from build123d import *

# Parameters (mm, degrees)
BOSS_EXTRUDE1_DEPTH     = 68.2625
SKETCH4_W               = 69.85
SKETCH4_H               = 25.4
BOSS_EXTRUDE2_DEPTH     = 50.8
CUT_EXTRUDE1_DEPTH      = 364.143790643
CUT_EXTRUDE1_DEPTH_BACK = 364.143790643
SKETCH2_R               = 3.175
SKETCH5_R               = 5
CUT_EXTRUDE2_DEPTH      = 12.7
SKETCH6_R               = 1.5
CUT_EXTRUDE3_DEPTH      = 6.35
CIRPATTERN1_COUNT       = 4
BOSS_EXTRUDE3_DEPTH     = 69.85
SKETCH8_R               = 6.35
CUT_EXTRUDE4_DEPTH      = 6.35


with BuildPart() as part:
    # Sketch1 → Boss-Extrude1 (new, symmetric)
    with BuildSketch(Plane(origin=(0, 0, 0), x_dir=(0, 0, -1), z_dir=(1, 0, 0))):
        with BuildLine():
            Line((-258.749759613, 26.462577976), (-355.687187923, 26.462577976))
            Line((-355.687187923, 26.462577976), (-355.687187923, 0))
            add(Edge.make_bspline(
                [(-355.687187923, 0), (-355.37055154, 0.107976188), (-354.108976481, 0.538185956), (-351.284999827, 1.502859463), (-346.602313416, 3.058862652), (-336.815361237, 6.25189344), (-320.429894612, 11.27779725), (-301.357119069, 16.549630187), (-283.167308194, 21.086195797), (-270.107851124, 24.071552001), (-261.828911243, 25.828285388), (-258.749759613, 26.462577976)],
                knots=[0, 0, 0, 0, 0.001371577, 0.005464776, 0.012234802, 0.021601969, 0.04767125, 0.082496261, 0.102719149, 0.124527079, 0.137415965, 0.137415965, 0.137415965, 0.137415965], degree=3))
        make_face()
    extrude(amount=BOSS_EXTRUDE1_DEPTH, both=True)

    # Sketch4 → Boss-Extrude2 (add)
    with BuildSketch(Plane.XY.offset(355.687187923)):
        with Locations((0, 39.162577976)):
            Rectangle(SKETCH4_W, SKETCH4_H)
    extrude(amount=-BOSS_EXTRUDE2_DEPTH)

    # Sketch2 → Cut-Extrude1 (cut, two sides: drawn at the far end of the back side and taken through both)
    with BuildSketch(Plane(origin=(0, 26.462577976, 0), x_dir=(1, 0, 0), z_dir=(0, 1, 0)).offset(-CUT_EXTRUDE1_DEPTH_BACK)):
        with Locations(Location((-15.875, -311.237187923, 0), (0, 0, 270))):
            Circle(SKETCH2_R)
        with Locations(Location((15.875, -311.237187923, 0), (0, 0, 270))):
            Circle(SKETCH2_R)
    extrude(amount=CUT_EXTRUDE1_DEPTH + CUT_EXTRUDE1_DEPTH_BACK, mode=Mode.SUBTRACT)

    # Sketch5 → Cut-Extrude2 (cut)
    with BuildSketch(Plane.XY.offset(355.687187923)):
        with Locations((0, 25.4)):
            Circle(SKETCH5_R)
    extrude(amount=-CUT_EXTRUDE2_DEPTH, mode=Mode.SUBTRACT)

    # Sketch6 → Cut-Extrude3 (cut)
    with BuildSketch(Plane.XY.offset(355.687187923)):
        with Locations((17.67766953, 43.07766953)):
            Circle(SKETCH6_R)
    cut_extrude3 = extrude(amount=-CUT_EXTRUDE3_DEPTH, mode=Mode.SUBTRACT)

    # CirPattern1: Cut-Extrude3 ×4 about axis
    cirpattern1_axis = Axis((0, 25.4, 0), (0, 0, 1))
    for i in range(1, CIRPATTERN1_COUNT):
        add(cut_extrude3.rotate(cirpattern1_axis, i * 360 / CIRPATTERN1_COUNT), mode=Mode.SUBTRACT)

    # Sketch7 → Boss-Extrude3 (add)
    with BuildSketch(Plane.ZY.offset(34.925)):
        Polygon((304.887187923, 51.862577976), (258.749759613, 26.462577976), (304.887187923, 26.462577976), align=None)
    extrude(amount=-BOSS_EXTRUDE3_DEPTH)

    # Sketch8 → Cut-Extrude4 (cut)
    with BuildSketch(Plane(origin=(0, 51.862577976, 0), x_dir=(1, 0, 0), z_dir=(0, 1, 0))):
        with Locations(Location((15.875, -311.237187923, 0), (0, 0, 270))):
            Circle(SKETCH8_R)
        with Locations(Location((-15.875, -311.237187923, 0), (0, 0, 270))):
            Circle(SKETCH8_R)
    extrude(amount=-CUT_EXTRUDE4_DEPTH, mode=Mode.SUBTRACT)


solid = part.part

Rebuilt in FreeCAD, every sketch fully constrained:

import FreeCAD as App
import Part
import Sketcher

V = App.Vector
Q = App.Units.Quantity


def add_polygon(sketch, points):
    """Adds a closed chain of lines whose ends are joined by coincident constraints."""
    first, n = sketch.GeometryCount, len(points)
    for a, b in zip(points, points[1:] + points[:1]):
        sketch.addGeometry(Part.LineSegment(App.Vector(*a, 0), App.Vector(*b, 0)), False)
    for i in range(n):
        sketch.addConstraint(Sketcher.Constraint("Coincident", first + i, 2, first + (i + 1) % n, 1))

doc = App.newDocument("Part")
params = doc.addObject("Spreadsheet::Sheet", "Params")
for row, (alias, value) in enumerate([
    ("pad1_length", "5.375 in"),
    ("sketch2_height", "1 in"),
    ("sketch2_width", "2.75 in"),
    ("pad2_length", "2 in"),
    ("sketch3_diameter", "0.25 in"),
    ("pocket2_length", "0.5 in"),
    ("pocket3_length", "0.25 in"),
    ("sketch6_width", "1 in"),
    ("pad3_length", "2.75 in"),
    ("sketch7_diameter", "0.5 in"),
    ("pocket4_length", "0.25 in"),
], start=1):
    params.set(f"A{row}", alias)
    params.set(f"B{row}", "=" + value)
    params.setAlias(f"B{row}", alias)

body = doc.addObject("PartDesign::Body", "Body")

sketch1 = body.newObject("Sketcher::SketchObject", "Sketch")
sketch1.AttachmentSupport = (doc.getObject("YZ_Plane"), [""])
sketch1.MapMode = "FlatFace"
sketch1.addGeometry(Part.LineSegment(V(26.462578, 258.74976, 0), V(26.462578, 355.687188, 0)), False)
sketch1.addGeometry(Part.LineSegment(V(26.462578, 355.687188, 0), V(0, 355.687188, 0)), False)
sketch1.addGeometry(Part.BSplineCurve([V(0, 355.687188, 0), V(0.107976, 355.370552, 0), V(0.538186, 354.108976, 0), V(1.502859, 351.285, 0), V(3.058863, 346.602313, 0), V(6.251893, 336.815361, 0), V(11.277797, 320.429895, 0), V(16.54963, 301.357119, 0), V(21.086196, 283.167308, 0), V(24.071552, 270.107851, 0), V(25.828285, 261.828911, 0), V(26.462578, 258.74976, 0)], [4, 1, 1, 1, 1, 1, 1, 1, 1, 4], [0, 0.001371577, 0.005464776, 0.012234802, 0.021601969, 0.04767125, 0.082496261, 0.102719149, 0.124527079, 0.137415965], False, 3, [1, 1, 1, 1, 1, 1, 1, 1, 1, 1, 1, 1], False), False)
sketch1.addConstraint(Sketcher.Constraint("Block", 2))
sketch1.addConstraint(Sketcher.Constraint("Coincident", 0, 2, 1, 1))
sketch1.addConstraint(Sketcher.Constraint("Coincident", 1, 2, 2, 1))
sketch1.addConstraint(Sketcher.Constraint("Coincident", 2, 2, 0, 1))
sketch1.addConstraint(Sketcher.Constraint("Vertical", 0))
sketch1.addConstraint(Sketcher.Constraint("Horizontal", 1))
pad1 = body.newObject("PartDesign::Pad", "Pad")
pad1.Profile = sketch1
pad1.setExpression("Length", "Params.pad1_length")
pad1.Midplane = True

sketch2 = body.newObject("Sketcher::SketchObject", "Sketch001")
sketch2.AttachmentSupport = (doc.getObject("XY_Plane"), [""])
sketch2.MapMode = "FlatFace"
sketch2.AttachmentOffset = App.Placement(V(0, 0, 355.687188), App.Rotation())
add_polygon(sketch2, [(-35, 52), (-35, 26), (35, 26), (35, 52)])
sketch2.addConstraint(Sketcher.Constraint("Vertical", 0))
sketch2.addConstraint(Sketcher.Constraint("Horizontal", 1))
sketch2.addConstraint(Sketcher.Constraint("Vertical", 2))
sketch2.addConstraint(Sketcher.Constraint("Horizontal", 3))
sketch2.addConstraint(Sketcher.Constraint("DistanceY", 0, 2, 0, 1, Q("1 in")))
sketch2.addConstraint(Sketcher.Constraint("DistanceX", 1, 1, 1, 2, Q("2.75 in")))
sketch2.addConstraint(Sketcher.Constraint("DistanceX", 0, 2, -1, 1, Q("1.375 in")))
sketch2.addConstraint(Sketcher.Constraint("DistanceY", -1, 1, 0, 2, 26.462578))
sketch2.setExpression("Constraints[8]", "Params.sketch2_height")
sketch2.setExpression("Constraints[9]", "Params.sketch2_width")
pad2 = body.newObject("PartDesign::Pad", "Pad001")
pad2.Profile = sketch2
pad2.setExpression("Length", "Params.pad2_length")
pad2.Reversed = True

sketch3 = body.newObject("Sketcher::SketchObject", "Sketch002")
sketch3.AttachmentSupport = (doc.getObject("XZ_Plane"), [""])
sketch3.MapMode = "FlatFace"
sketch3.AttachmentOffset = App.Placement(V(0, 0, -26.462578), App.Rotation())
sketch3.addGeometry(Part.Circle(V(-15.9, 311.2, 0), V(0, 0, 1), 3.2), False)
sketch3.addGeometry(Part.Circle(V(15.9, 311.2, 0), V(0, 0, 1), 3.2), False)
sketch3.addConstraint(Sketcher.Constraint("Equal", 0, 1))
sketch3.addConstraint(Sketcher.Constraint("Symmetric", 0, 3, 1, 3, -2))
sketch3.addConstraint(Sketcher.Constraint("Diameter", 0, Q("0.25 in")))
sketch3.addConstraint(Sketcher.Constraint("DistanceX", 0, 3, 1, 3, Q("1.25 in")))
sketch3.addConstraint(Sketcher.Constraint("DistanceY", -1, 1, 0, 3, 311.237188))
sketch3.setExpression("Constraints[2]", "Params.sketch3_diameter")
pocket1 = body.newObject("PartDesign::Pocket", "Pocket")
pocket1.Profile = sketch3
pocket1.Type = "ThroughAll"
pocket1.Midplane = True

sketch4 = body.newObject("Sketcher::SketchObject", "Sketch003")
sketch4.AttachmentSupport = (doc.getObject("XY_Plane"), [""])
sketch4.MapMode = "FlatFace"
sketch4.AttachmentOffset = App.Placement(V(0, 0, 355.687188), App.Rotation())
sketch4.addGeometry(Part.Circle(V(0, 25, 0), V(0, 0, 1), 5), False)
sketch4.addConstraint(Sketcher.Constraint("PointOnObject", 0, 3, -2))
sketch4.addConstraint(Sketcher.Constraint("DistanceY", -1, 1, 0, 3, Q("1 in")))
sketch4.addConstraint(Sketcher.Constraint("Diameter", 0, 10.0))
pocket2 = body.newObject("PartDesign::Pocket", "Pocket001")
pocket2.Profile = sketch4
pocket2.setExpression("Length", "Params.pocket2_length")

sketch5 = body.newObject("Sketcher::SketchObject", "Sketch004")
sketch5.AttachmentSupport = (doc.getObject("XY_Plane"), [""])
sketch5.MapMode = "FlatFace"
sketch5.AttachmentOffset = App.Placement(V(0, 0, 355.687188), App.Rotation())
sketch5.addGeometry(Part.Circle(V(17.7, 43.1, 0), V(0, 0, 1), 1.5), False)
sketch5.addConstraint(Sketcher.Constraint("Diameter", 0, 3.0))
sketch5.addConstraint(Sketcher.Constraint("DistanceX", -1, 1, 0, 3, 17.67767))
sketch5.addConstraint(Sketcher.Constraint("DistanceY", -1, 1, 0, 3, 43.07767))
pocket3 = body.newObject("PartDesign::Pocket", "Pocket002")
pocket3.Profile = sketch5
pocket3.setExpression("Length", "Params.pocket3_length")
doc.recompute()

datumline = body.newObject("PartDesign::Line", "DatumLine")
datumline.Placement = App.Placement(V(0, 25.4, 0), App.Rotation(V(0, 0, 1), V(0, 0, 1)))
polarpattern = body.newObject("PartDesign::PolarPattern", "PolarPattern")
polarpattern.Originals = [pocket3]
polarpattern.Axis = (datumline, [""])
polarpattern.Angle = 360
polarpattern.Occurrences = 4
body.Tip = polarpattern

sketch6 = body.newObject("Sketcher::SketchObject", "Sketch005")
sketch6.AttachmentSupport = (doc.getObject("YZ_Plane"), [""])
sketch6.MapMode = "FlatFace"
sketch6.AttachmentOffset = App.Placement(V(0, 0, -1.375 * 25.4), App.Rotation())
add_polygon(sketch6, [(52, 305), (26, 259), (26, 305)])
sketch6.addConstraint(Sketcher.Constraint("Vertical", 1))
sketch6.addConstraint(Sketcher.Constraint("Horizontal", 2))
sketch6.addConstraint(Sketcher.Constraint("DistanceX", 2, 1, 2, 2, Q("1 in")))
sketch6.addConstraint(Sketcher.Constraint("DistanceY", 1, 1, 1, 2, 46.137428))
sketch6.addConstraint(Sketcher.Constraint("DistanceY", -1, 1, 0, 2, 258.74976))
sketch6.addConstraint(Sketcher.Constraint("DistanceX", -1, 1, 0, 2, 26.462578))
sketch6.setExpression("Constraints[5]", "Params.sketch6_width")
pad3 = body.newObject("PartDesign::Pad", "Pad002")
pad3.Profile = sketch6
pad3.setExpression("Length", "Params.pad3_length")

sketch7 = body.newObject("Sketcher::SketchObject", "Sketch006")
sketch7.AttachmentSupport = (doc.getObject("XZ_Plane"), [""])
sketch7.MapMode = "FlatFace"
sketch7.AttachmentOffset = App.Placement(V(0, 0, -51.862578), App.Rotation())
sketch7.addGeometry(Part.Circle(V(16, 311, 0), V(0, 0, 1), 6), False)
sketch7.addGeometry(Part.Circle(V(-16, 311, 0), V(0, 0, 1), 6), False)
sketch7.addConstraint(Sketcher.Constraint("Equal", 0, 1))
sketch7.addConstraint(Sketcher.Constraint("Symmetric", 0, 3, 1, 3, -2))
sketch7.addConstraint(Sketcher.Constraint("Diameter", 0, Q("0.5 in")))
sketch7.addConstraint(Sketcher.Constraint("DistanceX", 1, 3, 0, 3, Q("1.25 in")))
sketch7.addConstraint(Sketcher.Constraint("DistanceY", -1, 1, 0, 3, 311.237188))
sketch7.setExpression("Constraints[2]", "Params.sketch7_diameter")
pocket4 = body.newObject("PartDesign::Pocket", "Pocket003")
pocket4.Profile = sketch7
pocket4.setExpression("Length", "Params.pocket4_length")
pocket4.Reversed = True

doc.recompute()
